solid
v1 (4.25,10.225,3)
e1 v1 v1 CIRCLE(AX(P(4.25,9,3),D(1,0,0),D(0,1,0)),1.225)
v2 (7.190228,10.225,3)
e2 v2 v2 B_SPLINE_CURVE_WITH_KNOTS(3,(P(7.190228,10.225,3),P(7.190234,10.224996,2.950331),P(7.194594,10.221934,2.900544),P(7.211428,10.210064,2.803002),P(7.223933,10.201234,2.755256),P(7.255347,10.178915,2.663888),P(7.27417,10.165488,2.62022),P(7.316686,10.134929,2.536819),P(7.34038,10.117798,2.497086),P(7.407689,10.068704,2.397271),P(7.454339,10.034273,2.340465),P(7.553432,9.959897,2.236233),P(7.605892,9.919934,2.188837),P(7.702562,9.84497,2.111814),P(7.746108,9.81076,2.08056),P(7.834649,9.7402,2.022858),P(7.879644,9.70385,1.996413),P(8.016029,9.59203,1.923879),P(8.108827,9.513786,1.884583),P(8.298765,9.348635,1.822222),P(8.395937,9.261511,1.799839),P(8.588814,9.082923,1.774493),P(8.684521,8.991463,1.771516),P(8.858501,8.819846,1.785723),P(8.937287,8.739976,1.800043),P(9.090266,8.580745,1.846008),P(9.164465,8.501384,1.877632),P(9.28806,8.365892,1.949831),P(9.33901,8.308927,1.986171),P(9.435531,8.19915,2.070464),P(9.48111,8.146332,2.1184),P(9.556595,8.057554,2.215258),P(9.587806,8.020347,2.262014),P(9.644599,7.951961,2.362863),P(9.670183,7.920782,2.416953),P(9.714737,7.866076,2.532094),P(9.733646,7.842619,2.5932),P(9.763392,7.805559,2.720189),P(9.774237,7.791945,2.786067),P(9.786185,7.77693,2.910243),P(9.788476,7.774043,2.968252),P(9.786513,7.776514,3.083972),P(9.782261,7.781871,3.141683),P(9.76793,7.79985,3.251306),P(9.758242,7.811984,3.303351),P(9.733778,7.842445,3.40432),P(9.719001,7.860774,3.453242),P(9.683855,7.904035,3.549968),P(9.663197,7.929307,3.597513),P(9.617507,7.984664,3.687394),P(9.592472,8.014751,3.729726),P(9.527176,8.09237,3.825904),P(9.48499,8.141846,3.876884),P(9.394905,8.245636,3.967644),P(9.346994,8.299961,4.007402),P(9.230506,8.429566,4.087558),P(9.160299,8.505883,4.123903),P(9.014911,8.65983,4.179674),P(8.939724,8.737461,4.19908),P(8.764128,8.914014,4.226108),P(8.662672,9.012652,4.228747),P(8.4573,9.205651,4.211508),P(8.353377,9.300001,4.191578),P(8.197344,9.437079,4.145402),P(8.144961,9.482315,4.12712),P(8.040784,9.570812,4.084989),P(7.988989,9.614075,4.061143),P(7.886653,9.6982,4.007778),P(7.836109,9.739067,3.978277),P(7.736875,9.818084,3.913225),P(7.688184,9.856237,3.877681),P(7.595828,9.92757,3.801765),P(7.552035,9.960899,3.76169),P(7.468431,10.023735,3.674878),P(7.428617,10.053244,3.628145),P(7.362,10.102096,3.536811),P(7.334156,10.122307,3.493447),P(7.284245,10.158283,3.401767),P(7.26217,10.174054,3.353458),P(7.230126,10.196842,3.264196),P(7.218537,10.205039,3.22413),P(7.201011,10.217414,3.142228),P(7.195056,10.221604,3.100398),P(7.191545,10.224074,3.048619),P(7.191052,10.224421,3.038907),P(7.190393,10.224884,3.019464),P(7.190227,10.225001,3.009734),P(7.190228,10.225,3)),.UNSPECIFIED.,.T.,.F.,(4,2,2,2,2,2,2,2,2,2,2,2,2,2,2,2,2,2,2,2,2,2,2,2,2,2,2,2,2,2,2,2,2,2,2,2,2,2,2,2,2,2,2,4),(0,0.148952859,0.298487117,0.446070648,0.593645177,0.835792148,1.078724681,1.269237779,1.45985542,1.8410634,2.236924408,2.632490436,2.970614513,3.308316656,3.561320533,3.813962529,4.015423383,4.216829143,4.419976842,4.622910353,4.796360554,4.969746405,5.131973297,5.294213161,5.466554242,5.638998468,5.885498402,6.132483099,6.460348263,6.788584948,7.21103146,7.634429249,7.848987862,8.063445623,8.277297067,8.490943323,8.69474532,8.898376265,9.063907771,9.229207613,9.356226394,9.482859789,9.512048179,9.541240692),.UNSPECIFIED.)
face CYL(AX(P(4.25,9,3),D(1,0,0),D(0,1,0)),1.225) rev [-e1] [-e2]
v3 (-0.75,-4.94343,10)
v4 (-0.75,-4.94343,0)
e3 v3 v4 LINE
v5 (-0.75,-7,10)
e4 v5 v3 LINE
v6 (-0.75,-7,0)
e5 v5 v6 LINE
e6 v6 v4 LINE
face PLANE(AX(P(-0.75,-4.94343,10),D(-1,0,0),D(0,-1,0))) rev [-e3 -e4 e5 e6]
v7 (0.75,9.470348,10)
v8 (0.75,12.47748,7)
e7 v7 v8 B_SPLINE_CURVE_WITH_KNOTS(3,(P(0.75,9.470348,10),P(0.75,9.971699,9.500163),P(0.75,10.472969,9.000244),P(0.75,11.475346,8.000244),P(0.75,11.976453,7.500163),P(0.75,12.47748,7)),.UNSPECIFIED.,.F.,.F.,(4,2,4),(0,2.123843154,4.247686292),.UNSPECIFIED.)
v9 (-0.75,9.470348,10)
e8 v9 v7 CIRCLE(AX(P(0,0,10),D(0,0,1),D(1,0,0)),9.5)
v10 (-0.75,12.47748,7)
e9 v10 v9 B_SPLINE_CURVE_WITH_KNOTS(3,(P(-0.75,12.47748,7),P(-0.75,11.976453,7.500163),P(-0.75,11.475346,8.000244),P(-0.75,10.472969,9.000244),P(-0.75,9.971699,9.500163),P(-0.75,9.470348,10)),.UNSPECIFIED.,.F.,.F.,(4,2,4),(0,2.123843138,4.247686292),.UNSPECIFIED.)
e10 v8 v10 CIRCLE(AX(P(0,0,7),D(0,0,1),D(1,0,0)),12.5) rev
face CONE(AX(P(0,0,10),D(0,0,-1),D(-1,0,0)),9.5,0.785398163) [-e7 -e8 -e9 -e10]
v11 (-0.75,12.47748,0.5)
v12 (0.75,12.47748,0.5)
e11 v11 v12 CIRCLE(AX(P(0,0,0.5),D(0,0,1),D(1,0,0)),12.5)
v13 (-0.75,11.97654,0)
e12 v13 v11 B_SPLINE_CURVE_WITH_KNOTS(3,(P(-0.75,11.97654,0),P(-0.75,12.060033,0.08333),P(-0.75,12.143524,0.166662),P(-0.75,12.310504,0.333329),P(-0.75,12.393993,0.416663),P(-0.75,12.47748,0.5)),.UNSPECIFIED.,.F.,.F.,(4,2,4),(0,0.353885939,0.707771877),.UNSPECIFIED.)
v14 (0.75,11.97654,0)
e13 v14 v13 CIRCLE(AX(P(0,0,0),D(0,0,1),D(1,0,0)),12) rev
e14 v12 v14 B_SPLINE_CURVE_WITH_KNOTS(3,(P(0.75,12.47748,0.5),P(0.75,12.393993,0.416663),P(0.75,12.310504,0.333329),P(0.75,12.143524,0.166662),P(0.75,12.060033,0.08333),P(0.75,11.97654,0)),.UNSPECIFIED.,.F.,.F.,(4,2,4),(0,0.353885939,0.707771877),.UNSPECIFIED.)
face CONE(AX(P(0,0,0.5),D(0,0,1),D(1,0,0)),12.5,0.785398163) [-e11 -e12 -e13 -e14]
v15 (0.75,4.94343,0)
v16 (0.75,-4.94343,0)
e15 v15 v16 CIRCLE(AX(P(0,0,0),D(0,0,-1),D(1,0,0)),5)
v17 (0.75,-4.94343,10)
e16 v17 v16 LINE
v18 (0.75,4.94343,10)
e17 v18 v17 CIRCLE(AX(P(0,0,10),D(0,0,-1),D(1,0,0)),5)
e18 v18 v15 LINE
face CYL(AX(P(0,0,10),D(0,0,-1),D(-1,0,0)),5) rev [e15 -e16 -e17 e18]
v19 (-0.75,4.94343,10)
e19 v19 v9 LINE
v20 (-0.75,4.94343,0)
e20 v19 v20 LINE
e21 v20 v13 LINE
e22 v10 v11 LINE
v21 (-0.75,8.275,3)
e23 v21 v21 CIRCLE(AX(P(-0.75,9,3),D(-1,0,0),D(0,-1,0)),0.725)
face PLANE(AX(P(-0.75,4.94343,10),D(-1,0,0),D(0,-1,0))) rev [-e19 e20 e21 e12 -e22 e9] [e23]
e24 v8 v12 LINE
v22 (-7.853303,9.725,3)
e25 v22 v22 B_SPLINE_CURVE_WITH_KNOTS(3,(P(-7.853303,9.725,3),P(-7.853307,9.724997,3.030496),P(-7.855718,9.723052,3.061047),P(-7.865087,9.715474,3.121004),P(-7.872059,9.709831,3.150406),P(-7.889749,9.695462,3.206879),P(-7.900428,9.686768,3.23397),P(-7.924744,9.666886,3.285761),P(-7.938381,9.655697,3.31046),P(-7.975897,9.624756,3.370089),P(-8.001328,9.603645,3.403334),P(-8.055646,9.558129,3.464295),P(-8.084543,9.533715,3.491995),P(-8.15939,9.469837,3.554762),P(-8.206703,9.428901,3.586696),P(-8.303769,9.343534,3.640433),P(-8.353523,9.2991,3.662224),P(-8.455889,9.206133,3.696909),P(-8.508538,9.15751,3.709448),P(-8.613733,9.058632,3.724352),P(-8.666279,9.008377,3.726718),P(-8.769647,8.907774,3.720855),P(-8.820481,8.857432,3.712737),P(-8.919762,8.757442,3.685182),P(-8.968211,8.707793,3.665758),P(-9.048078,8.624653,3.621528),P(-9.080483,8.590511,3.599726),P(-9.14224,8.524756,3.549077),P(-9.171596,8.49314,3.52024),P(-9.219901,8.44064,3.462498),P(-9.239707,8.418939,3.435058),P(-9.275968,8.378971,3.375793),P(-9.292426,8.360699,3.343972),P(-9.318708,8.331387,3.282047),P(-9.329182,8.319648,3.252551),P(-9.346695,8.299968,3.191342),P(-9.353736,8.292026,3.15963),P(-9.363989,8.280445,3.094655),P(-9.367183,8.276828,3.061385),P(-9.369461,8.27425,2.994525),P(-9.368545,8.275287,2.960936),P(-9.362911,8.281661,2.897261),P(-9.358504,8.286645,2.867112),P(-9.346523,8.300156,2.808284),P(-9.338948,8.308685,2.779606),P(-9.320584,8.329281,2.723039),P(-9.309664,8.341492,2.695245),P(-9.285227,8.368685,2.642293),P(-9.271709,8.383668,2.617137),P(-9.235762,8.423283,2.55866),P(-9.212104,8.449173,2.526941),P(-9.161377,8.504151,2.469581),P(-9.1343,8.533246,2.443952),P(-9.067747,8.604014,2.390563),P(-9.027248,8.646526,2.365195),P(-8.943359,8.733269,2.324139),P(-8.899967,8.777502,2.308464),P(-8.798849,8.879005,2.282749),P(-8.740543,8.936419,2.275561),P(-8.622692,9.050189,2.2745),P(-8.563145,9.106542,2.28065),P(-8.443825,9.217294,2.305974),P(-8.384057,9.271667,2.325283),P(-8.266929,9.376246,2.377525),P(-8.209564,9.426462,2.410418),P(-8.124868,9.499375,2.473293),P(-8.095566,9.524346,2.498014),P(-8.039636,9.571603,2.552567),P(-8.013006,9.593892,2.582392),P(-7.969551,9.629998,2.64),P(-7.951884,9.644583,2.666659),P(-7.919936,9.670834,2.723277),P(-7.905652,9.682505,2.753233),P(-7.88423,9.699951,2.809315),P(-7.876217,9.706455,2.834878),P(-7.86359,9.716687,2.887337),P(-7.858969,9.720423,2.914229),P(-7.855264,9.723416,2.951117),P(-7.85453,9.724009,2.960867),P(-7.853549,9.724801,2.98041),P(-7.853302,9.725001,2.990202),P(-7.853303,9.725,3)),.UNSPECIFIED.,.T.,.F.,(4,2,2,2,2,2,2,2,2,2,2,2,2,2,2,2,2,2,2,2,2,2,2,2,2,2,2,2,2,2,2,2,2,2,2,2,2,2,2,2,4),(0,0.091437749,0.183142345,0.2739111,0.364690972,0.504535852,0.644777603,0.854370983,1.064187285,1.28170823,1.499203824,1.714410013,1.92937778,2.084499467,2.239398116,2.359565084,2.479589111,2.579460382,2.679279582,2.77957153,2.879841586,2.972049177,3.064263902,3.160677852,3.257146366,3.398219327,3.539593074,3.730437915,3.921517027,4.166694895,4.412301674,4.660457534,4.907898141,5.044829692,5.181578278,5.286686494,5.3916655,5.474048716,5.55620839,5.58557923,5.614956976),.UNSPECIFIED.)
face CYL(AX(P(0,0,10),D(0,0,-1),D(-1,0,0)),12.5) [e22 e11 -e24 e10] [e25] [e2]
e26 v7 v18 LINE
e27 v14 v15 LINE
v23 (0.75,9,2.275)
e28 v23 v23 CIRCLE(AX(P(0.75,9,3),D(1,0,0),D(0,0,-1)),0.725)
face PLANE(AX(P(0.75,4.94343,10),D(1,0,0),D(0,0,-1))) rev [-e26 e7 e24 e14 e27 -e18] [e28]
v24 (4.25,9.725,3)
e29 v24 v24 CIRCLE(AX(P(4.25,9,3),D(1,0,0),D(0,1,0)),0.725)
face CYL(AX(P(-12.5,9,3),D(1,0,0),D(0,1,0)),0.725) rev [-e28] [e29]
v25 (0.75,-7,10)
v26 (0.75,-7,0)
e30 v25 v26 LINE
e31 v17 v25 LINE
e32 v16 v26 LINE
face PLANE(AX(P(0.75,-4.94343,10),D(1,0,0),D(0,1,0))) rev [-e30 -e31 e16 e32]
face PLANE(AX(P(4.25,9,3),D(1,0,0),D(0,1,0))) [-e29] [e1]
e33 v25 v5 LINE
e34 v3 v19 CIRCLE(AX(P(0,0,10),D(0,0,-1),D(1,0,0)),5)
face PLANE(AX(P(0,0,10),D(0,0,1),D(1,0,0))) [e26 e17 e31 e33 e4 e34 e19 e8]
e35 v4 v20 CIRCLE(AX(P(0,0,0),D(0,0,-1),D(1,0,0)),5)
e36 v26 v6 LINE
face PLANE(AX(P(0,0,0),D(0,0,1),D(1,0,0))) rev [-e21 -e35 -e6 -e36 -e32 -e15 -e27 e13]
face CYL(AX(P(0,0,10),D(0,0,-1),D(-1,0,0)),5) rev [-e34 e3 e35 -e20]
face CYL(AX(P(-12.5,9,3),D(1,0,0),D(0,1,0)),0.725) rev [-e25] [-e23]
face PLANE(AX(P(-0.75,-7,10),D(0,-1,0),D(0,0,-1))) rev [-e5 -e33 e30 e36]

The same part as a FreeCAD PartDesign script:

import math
import FreeCAD as App
import Part
import Sketcher

V = App.Vector
Q = App.Units.Quantity


def edges_at(feature, points):
    """Names of the edges that pass closest to the given points."""
    edges = feature.Shape.Edges
    near = lambda p: min(range(len(edges)), key=lambda i: edges[i].distToShape(Part.Vertex(*p))[0])
    return sorted({f"Edge{near(p) + 1}" for p in points})

doc = App.newDocument("Part")
params = doc.addObject("Spreadsheet::Sheet", "Params")
for row, (alias, value) in enumerate([
    ("sketch1_radius", "5 mm"),
    ("sketch1_radius2", "12.5 mm"),
    ("sketch1_width", "1.5 mm"),
    ("pad1_length", "10 mm"),
    ("chamfer_size", "3 mm"),
    ("chamfer2_size", "0.5 mm"),
    ("sketch2_diameter", "2.45 mm"),
    ("pocket1_length", "10 mm"),
    ("sketch3_diameter", "1.45 mm"),
], start=1):
    params.set(f"A{row}", alias)
    params.set(f"B{row}", "=" + value)
    params.setAlias(f"B{row}", alias)

body = doc.addObject("PartDesign::Body", "Body")

# Sketch on XY plane
sketch1 = body.newObject("Sketcher::SketchObject", "Sketch")
sketch1.AttachmentSupport = (doc.getObject("XY_Plane"), [""])
sketch1.MapMode = "FlatFace"
sketch1.addGeometry([
    Part.LineSegment(V(-0.8, 4.9, 0), V(-0.8, 12.5, 0)),  # 0
    Part.ArcOfCircle(Part.Circle(V(0, 0, 0), V(0, 0, 1), 12.5), math.radians(93), math.radians(447)),  # 1
    Part.LineSegment(V(0.8, 12.5, 0), V(0.8, 4.9, 0)),  # 2
    Part.ArcOfCircle(Part.Circle(V(0, 0, 0), V(0, 0, 1), 5), math.radians(-81), math.radians(81)),  # 3
    Part.LineSegment(V(0.8, -4.9, 0), V(0.8, -7, 0)),  # 4
    Part.LineSegment(V(0.8, -7, 0), V(-0.8, -7, 0)),  # 5
    Part.LineSegment(V(-0.8, -7, 0), V(-0.8, -4.9, 0)),  # 6
    Part.ArcOfCircle(Part.Circle(V(0, 0, 0), V(0, 0, 1), 5), math.radians(99), math.radians(261)),  # 7
], False)
sketch1.addConstraint([
    Sketcher.Constraint("Coincident", 0, 2, 1, 1),
    Sketcher.Constraint("Coincident", 1, 2, 2, 1),
    Sketcher.Constraint("Coincident", 2, 2, 3, 2),
    Sketcher.Constraint("Coincident", 3, 1, 4, 1),
    Sketcher.Constraint("Coincident", 4, 2, 5, 1),
    Sketcher.Constraint("Coincident", 5, 2, 6, 1),
    Sketcher.Constraint("Coincident", 6, 2, 7, 2),
    Sketcher.Constraint("Coincident", 7, 1, 0, 1),
    Sketcher.Constraint("Vertical", 0),
    Sketcher.Constraint("Vertical", 2),
    Sketcher.Constraint("Vertical", 4),
    Sketcher.Constraint("Horizontal", 5),
    Sketcher.Constraint("Vertical", 6),
    Sketcher.Constraint("Coincident", 1, 3, -1, 1),
    Sketcher.Constraint("Coincident", 3, 3, -1, 1),
    Sketcher.Constraint("Coincident", 7, 3, -1, 1),
    Sketcher.Constraint("Equal", 3, 7),
    Sketcher.Constraint("Horizontal", 0, 2, 1, 2),
    Sketcher.Constraint("Horizontal", 3, 1, 6, 2),
    Sketcher.Constraint("Vertical", 2, 2, 3, 1),
    Sketcher.Constraint("Radius", 3, Q("5 mm")),
    Sketcher.Constraint("Radius", 1, Q("12.5 mm")),
    Sketcher.Constraint("DistanceX", 5, 2, 5, 1, Q("1.5 mm")),
    Sketcher.Constraint("DistanceY", 4, 2, -1, 1, Q("7 mm")),
])
sketch1.setExpression("Constraints[20]", "Params.sketch1_radius")
sketch1.setExpression("Constraints[21]", "Params.sketch1_radius2")
sketch1.setExpression("Constraints[22]", "Params.sketch1_width")
pad1 = body.newObject("PartDesign::Pad", "Pad")
pad1.Profile = sketch1
pad1.setExpression("Length", "Params.pad1_length")
doc.recompute()

chamfer = body.newObject("PartDesign::Chamfer", "Chamfer")
chamfer.Base = (pad1, edges_at(pad1, [(0, -12.5, 10)]))
chamfer.setExpression("Size", "Params.chamfer_size")
doc.recompute()

chamfer2 = body.newObject("PartDesign::Chamfer", "Chamfer001")
chamfer2.Base = (chamfer, edges_at(chamfer, [(0, -12.5, 0)]))
chamfer2.setExpression("Size", "Params.chamfer2_size")

# Sketch on YZ plane
sketch2 = body.newObject("Sketcher::SketchObject", "Sketch001")
sketch2.AttachmentSupport = (doc.getObject("YZ_Plane"), [""])
sketch2.MapMode = "FlatFace"
sketch2.AttachmentOffset = App.Placement(V(0, 0, 14.25), App.Rotation())
sketch2.addGeometry(Part.Circle(V(9, 3, 0), V(0, 0, 1), 1.2), False)
sketch2.addConstraint([
    Sketcher.Constraint("Diameter", 0, Q("2.45 mm")),
    Sketcher.Constraint("DistanceX", -1, 1, 0, 3, Q("9 mm")),
    Sketcher.Constraint("DistanceY", -1, 1, 0, 3, Q("3 mm")),
])
sketch2.setExpression("Constraints[0]", "Params.sketch2_diameter")
pocket1 = body.newObject("PartDesign::Pocket", "Pocket")
pocket1.Profile = sketch2
pocket1.setExpression("Length", "Params.pocket1_length")

# Sketch on YZ plane
sketch3 = body.newObject("Sketcher::SketchObject", "Sketch002")
sketch3.AttachmentSupport = (doc.getObject("YZ_Plane"), [""])
sketch3.MapMode = "FlatFace"
sketch3.AttachmentOffset = App.Placement(V(0, 0, 14.25), App.Rotation())
sketch3.addGeometry(Part.Circle(V(9, 3, 0), V(0, 0, 1), 0.7), False)
sketch3.addConstraint([
    Sketcher.Constraint("Diameter", 0, Q("1.45 mm")),
    Sketcher.Constraint("DistanceX", -1, 1, 0, 3, Q("9 mm")),
    Sketcher.Constraint("DistanceY", -1, 1, 0, 3, Q("3 mm")),
])
sketch3.setExpression("Constraints[0]", "Params.sketch3_diameter")
pocket2 = body.newObject("PartDesign::Pocket", "Pocket001")
pocket2.Profile = sketch3
pocket2.Type = "ThroughAll"

doc.recompute()
